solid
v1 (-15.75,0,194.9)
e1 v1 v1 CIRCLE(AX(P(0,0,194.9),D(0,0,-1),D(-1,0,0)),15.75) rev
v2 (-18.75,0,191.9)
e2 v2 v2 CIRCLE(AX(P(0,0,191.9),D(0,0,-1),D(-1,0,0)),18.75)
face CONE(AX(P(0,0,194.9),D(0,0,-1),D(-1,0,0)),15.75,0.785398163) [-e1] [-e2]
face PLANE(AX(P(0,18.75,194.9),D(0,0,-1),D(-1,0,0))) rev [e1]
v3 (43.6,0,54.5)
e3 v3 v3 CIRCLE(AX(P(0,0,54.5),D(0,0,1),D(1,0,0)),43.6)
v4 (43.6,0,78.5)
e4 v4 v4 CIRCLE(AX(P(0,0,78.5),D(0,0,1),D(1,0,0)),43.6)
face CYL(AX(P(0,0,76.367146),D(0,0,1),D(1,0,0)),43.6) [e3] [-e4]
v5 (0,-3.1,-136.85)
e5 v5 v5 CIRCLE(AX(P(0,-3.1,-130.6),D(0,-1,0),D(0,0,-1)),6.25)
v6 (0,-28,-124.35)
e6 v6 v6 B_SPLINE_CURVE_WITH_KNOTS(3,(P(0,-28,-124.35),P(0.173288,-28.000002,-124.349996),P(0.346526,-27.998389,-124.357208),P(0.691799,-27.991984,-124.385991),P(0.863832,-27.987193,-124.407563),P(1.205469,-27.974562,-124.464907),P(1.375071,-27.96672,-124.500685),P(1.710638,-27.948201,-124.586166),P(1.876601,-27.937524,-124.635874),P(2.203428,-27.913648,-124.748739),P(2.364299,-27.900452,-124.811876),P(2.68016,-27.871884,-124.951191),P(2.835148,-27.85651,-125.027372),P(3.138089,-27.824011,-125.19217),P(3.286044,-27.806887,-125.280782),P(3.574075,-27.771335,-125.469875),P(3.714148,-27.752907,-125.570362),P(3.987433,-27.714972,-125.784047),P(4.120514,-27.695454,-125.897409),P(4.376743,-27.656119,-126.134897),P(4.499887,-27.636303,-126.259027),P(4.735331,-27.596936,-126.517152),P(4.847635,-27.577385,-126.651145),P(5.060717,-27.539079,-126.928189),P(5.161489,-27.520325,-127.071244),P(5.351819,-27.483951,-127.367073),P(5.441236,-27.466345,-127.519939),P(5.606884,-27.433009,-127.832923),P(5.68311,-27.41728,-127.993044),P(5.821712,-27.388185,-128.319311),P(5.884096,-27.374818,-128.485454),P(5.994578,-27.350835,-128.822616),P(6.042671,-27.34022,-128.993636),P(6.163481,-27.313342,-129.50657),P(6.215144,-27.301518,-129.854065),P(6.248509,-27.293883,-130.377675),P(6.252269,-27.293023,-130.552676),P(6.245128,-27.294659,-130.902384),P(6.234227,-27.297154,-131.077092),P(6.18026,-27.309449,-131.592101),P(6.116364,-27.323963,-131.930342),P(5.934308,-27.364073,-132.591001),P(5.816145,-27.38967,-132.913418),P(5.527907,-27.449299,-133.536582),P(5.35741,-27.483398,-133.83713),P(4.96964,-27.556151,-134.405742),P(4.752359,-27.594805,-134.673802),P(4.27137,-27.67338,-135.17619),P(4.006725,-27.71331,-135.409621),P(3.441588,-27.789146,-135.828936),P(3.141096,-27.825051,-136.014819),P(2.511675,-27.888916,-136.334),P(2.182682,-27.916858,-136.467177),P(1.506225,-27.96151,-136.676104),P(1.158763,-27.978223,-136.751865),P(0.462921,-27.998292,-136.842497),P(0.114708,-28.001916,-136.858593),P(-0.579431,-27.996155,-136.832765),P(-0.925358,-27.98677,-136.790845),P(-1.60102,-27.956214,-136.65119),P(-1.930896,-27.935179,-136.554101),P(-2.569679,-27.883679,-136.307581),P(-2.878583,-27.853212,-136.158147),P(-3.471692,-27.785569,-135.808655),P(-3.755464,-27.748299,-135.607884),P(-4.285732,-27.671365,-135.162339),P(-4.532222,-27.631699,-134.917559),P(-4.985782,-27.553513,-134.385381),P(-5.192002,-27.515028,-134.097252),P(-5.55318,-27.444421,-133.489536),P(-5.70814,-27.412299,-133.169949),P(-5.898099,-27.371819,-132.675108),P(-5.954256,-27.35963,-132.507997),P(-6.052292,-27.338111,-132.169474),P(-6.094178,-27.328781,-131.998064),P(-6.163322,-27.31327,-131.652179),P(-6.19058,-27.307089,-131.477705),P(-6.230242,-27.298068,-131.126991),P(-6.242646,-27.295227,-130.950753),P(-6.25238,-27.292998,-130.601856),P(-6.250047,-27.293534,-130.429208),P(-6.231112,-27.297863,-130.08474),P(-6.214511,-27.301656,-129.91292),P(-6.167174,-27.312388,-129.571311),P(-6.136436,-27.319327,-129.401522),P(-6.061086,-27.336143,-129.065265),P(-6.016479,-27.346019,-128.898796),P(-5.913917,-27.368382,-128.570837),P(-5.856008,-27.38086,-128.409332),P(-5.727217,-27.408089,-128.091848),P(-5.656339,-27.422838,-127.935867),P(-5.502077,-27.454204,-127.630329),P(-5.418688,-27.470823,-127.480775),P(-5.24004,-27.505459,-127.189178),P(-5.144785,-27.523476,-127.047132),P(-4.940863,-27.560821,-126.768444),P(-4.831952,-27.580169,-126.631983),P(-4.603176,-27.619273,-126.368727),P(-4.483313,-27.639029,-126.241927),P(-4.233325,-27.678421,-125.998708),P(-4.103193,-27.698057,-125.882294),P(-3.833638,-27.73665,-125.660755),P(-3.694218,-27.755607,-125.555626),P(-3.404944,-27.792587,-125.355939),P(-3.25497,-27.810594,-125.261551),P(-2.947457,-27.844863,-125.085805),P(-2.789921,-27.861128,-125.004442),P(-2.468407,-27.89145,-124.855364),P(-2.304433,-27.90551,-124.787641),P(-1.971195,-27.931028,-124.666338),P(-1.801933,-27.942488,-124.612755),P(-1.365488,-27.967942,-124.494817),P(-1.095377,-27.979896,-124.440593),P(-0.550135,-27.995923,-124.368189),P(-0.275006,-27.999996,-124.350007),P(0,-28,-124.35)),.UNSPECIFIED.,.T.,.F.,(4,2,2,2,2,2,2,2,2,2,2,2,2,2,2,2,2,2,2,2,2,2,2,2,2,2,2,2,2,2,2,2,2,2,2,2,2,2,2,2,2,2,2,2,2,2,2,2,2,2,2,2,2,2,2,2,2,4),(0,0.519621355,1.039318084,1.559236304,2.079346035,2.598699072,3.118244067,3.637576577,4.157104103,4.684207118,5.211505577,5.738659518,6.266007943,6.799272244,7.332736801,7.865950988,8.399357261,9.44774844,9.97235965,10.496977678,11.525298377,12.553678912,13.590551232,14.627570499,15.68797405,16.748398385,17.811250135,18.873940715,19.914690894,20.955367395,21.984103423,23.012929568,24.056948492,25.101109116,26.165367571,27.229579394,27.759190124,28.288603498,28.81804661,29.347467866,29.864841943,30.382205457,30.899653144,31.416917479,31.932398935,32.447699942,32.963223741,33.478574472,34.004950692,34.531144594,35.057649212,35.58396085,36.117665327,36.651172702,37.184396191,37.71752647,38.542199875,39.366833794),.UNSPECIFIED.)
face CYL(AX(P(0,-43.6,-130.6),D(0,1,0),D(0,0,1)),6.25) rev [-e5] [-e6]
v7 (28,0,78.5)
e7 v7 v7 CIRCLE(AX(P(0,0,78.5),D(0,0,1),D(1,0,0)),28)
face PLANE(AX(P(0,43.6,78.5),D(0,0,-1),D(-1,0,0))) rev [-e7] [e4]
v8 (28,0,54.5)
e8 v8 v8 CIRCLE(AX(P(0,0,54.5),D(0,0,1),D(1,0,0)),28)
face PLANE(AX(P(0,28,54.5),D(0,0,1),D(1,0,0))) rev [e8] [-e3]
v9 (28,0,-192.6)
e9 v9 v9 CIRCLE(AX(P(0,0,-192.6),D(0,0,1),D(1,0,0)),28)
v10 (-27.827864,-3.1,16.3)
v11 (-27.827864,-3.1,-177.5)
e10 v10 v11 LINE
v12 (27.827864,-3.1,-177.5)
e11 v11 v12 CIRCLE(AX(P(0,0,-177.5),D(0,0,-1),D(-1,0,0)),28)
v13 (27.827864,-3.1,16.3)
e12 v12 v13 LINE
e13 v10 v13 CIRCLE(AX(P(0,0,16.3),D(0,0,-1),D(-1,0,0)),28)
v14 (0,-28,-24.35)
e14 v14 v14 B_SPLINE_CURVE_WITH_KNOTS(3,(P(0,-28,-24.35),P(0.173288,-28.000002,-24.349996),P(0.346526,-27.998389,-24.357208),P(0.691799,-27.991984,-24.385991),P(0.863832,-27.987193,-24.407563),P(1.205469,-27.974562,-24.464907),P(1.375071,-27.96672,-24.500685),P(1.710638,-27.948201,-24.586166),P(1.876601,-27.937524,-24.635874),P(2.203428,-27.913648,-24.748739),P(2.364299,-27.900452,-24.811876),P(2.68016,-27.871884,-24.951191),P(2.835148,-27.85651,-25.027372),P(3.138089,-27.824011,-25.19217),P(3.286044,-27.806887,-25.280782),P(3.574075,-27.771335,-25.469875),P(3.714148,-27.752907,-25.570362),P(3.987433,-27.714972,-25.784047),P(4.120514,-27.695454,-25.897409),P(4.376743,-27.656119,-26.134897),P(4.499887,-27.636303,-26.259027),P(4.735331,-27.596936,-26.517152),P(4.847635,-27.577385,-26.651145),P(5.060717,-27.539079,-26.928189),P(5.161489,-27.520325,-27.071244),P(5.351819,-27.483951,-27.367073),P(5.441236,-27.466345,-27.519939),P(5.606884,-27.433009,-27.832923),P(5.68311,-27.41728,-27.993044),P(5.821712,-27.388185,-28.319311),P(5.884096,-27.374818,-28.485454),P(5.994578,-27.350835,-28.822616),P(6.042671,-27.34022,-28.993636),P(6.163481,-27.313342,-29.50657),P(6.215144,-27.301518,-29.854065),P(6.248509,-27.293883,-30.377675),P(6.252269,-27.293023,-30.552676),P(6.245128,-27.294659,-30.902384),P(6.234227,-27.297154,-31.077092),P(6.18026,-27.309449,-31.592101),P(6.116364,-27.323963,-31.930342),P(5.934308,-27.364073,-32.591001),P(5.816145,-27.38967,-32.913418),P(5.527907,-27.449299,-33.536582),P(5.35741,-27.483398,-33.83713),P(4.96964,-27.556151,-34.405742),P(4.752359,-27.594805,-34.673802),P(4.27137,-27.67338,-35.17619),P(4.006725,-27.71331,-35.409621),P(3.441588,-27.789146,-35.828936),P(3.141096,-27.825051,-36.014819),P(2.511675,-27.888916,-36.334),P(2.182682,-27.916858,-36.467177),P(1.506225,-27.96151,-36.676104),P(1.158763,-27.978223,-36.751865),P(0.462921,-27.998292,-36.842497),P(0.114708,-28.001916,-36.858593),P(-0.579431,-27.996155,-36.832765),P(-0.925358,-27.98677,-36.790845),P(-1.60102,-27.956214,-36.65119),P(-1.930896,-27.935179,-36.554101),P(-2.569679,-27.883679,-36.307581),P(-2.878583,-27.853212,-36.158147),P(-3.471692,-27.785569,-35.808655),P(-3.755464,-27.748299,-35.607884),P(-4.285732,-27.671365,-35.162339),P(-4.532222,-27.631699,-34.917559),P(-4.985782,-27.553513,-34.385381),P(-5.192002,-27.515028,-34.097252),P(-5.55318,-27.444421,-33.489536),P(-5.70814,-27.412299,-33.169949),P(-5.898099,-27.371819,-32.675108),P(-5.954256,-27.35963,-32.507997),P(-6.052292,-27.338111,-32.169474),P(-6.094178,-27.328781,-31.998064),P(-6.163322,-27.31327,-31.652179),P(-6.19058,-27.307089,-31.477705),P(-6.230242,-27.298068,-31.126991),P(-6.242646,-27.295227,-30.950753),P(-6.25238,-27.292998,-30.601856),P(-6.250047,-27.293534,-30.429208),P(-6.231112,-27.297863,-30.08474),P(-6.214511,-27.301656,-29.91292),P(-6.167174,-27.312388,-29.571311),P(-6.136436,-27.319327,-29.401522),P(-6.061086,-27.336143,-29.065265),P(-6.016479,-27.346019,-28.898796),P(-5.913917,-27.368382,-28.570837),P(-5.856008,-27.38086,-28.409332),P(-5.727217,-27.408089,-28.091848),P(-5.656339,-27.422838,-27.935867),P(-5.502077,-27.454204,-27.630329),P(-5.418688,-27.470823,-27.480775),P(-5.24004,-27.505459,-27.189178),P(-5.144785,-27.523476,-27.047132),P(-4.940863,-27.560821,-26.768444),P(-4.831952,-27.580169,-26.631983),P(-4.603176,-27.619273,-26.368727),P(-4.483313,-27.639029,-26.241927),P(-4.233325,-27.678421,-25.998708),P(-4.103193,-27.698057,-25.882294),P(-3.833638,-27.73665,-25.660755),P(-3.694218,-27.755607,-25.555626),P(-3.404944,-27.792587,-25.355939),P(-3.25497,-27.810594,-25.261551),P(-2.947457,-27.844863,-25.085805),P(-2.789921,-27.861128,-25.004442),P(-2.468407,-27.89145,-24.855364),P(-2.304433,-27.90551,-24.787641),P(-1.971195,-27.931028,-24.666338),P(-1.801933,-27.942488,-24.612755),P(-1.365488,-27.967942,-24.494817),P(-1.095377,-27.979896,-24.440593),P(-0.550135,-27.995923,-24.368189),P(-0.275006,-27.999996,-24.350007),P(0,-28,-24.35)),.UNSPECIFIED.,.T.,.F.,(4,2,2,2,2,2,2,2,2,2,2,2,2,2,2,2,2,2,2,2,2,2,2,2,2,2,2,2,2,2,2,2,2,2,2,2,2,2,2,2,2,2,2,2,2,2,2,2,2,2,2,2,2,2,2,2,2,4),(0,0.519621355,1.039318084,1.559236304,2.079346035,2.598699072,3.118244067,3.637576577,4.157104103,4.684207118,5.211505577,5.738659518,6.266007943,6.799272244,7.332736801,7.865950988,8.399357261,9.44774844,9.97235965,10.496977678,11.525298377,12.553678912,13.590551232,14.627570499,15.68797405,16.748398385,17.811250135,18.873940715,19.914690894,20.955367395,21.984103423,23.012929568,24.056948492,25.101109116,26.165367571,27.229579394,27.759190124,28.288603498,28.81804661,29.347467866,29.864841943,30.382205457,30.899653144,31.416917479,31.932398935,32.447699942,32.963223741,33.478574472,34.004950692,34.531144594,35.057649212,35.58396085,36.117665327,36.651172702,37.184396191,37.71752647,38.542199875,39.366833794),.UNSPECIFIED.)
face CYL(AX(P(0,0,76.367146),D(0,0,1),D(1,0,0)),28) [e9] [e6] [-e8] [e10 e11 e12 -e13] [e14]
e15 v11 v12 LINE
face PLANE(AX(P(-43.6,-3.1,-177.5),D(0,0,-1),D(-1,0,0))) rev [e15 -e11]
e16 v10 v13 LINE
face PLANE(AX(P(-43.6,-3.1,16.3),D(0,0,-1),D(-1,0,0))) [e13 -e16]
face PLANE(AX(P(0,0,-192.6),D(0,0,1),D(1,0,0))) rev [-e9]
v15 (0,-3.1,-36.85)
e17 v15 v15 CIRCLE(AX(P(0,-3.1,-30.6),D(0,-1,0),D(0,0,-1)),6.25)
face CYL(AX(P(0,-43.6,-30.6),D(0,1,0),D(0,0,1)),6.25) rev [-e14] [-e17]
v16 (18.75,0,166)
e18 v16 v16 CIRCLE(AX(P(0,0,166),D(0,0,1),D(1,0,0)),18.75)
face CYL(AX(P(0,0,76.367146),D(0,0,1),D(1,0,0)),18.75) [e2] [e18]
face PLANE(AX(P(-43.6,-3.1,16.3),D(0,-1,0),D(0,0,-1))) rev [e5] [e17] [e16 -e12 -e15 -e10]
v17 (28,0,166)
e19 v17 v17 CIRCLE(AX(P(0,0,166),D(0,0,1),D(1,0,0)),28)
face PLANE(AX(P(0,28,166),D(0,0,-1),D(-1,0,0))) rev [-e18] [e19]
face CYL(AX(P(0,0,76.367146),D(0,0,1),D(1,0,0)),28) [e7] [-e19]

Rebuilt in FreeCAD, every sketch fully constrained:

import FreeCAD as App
import Part
import Sketcher


def edges_at(feature, points):
    """Names of the edges that pass closest to the given points."""
    edges = feature.Shape.Edges
    near = lambda p: min(range(len(edges)), key=lambda i: edges[i].distToShape(Part.Vertex(*p))[0])
    return sorted({f"Edge{near(p) + 1}" for p in points})


def add_polygon(sketch, points):
    """Adds a closed chain of lines whose ends are joined by coincident constraints."""
    first, n = sketch.GeometryCount, len(points)
    for a, b in zip(points, points[1:] + points[:1]):
        sketch.addGeometry(Part.LineSegment(App.Vector(*a, 0), App.Vector(*b, 0)), False)
    for i in range(n):
        sketch.addConstraint(Sketcher.Constraint("Coincident", first + i, 2, first + (i + 1) % n, 1))

doc = App.newDocument("Part")
body = doc.addObject("PartDesign::Body", "Body")

sketch1 = body.newObject("Sketcher::SketchObject", "Sketch")
sketch1.AttachmentSupport = (doc.getObject("YZ_Plane"), [""])
sketch1.MapMode = "FlatFace"
add_polygon(sketch1, [(0, -193), (28, -193), (28, 54), (44, 54), (44, 78), (28, 78), (28, 166), (19, 166), (19, 195), (0, 195)])
sketch1.addConstraint([
    Sketcher.Constraint("Horizontal", 0),
    Sketcher.Constraint("Vertical", 1),
    Sketcher.Constraint("Horizontal", 2),
    Sketcher.Constraint("Vertical", 3),
    Sketcher.Constraint("Horizontal", 4),
    Sketcher.Constraint("Vertical", 5),
    Sketcher.Constraint("Horizontal", 6),
    Sketcher.Constraint("Vertical", 7),
    Sketcher.Constraint("Horizontal", 8),
    Sketcher.Constraint("Vertical", 9),
    Sketcher.Constraint("PointOnObject", 8, 2, -2),
    Sketcher.Constraint("Vertical", 1, 2, 4, 2),
    Sketcher.Constraint("DistanceX", 0, 1, 0, 2, 28.0),
    Sketcher.Constraint("DistanceY", 3, 1, 3, 2, 24.0),
    Sketcher.Constraint("DistanceX", 2, 1, 2, 2, 15.6),
    Sketcher.Constraint("DistanceY", 1, 1, 1, 2, 247.1),
    Sketcher.Constraint("DistanceY", 5, 1, 5, 2, 87.5),
    Sketcher.Constraint("DistanceY", 7, 1, 7, 2, 28.9),
    Sketcher.Constraint("DistanceY", -1, 1, 5, 2, 166.0),
    Sketcher.Constraint("DistanceX", 6, 2, 6, 1, 9.25),
])
revolution = body.newObject("PartDesign::Revolution", "Revolution")
revolution.Profile = sketch1
revolution.ReferenceAxis = (sketch1, ["V_Axis"])
revolution.Angle = 360

sketch2 = body.newObject("Sketcher::SketchObject", "Sketch001")
sketch2.AttachmentSupport = (doc.getObject("YZ_Plane"), [""])
sketch2.MapMode = "FlatFace"
add_polygon(sketch2, [(35, 16), (-3, 16), (-3, -178), (35, -178)])
sketch2.addConstraint([
    Sketcher.Constraint("Horizontal", 0),
    Sketcher.Constraint("Vertical", 1),
    Sketcher.Constraint("Horizontal", 2),
    Sketcher.Constraint("Vertical", 3),
    Sketcher.Constraint("DistanceY", 1, 2, 1, 1, 193.8),
    Sketcher.Constraint("DistanceX", 0, 2, -1, 1, 3.1),
    Sketcher.Constraint("DistanceY", -1, 1, 0, 2, 16.3),
    Sketcher.Constraint("DistanceX", 0, 2, 0, 1, 37.910107),
])
pocket1 = body.newObject("PartDesign::Pocket", "Pocket")
pocket1.Profile = sketch2
pocket1.Type = "ThroughAll"
pocket1.Midplane = True

sketch3 = body.newObject("Sketcher::SketchObject", "Sketch002")
sketch3.AttachmentSupport = (doc.getObject("XZ_Plane"), [""])
sketch3.MapMode = "FlatFace"
sketch3.addGeometry([
    Part.Circle(App.Vector(0, -31, 0), App.Vector(0, 0, 1), 6),
    Part.Circle(App.Vector(0, -131, 0), App.Vector(0, 0, 1), 6),
], False)
sketch3.addConstraint([
    Sketcher.Constraint("Equal", 0, 1),
    Sketcher.Constraint("PointOnObject", 0, 3, -2),
    Sketcher.Constraint("PointOnObject", 1, 3, -2),
    Sketcher.Constraint("Diameter", 0, 12.5),
    Sketcher.Constraint("DistanceY", 1, 3, 0, 3, 100.0),
    Sketcher.Constraint("DistanceY", 0, 3, -1, 1, 30.6),
])
pocket2 = body.newObject("PartDesign::Pocket", "Pocket001")
pocket2.Profile = sketch3
pocket2.Type = "ThroughAll"
pocket2.Midplane = True
doc.recompute()

chamfer = body.newObject("PartDesign::Chamfer", "Chamfer")
chamfer.Base = (pocket2, edges_at(pocket2, [(-18.75, 0, 194.9)]))
chamfer.Size = 3

doc.recompute()
